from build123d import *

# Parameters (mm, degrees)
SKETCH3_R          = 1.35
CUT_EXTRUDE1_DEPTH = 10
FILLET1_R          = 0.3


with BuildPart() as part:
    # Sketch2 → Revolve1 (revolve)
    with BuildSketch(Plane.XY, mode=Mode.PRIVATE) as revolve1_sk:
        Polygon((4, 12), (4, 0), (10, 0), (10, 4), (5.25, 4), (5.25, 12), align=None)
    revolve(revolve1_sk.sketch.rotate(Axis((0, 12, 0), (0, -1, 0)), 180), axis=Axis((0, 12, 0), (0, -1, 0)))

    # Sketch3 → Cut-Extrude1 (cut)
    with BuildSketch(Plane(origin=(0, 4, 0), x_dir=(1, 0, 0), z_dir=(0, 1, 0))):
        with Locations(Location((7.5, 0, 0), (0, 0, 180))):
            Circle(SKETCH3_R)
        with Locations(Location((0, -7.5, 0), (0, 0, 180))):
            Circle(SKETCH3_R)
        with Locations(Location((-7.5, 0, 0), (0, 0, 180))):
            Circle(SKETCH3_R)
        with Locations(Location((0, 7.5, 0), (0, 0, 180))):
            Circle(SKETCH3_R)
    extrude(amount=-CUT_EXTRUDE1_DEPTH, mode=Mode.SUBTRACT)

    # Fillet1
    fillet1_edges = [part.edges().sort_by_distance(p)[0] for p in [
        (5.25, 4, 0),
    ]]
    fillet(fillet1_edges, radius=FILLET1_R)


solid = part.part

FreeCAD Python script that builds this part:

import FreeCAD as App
import Part
import Sketcher
Q = App.Units.Quantity


def edges_at(feature, points):
    """Names of the edges that pass closest to the given points."""
    edges = feature.Shape.Edges
    near = lambda p: min(range(len(edges)), key=lambda i: edges[i].distToShape(Part.Vertex(*p))[0])
    return sorted({f"Edge{near(p) + 1}" for p in points})


def add_polygon(sketch, points):
    """Adds a closed chain of lines whose ends are joined by coincident constraints."""
    first, n = sketch.GeometryCount, len(points)
    for a, b in zip(points, points[1:] + points[:1]):
        sketch.addGeometry(Part.LineSegment(App.Vector(*a, 0), App.Vector(*b, 0)), False)
    for i in range(n):
        sketch.addConstraint(Sketcher.Constraint("Coincident", first + i, 2, first + (i + 1) % n, 1))

doc = App.newDocument("Part")
body = doc.addObject("PartDesign::Body", "Body")

sketch1 = doc.addObject("Sketcher::SketchObject", "Sketch")
body.addObject(sketch1)
sketch1.AttachmentSupport = (doc.XY_Plane, [""])
sketch1.MapMode = "FlatFace"
add_polygon(sketch1, [(4, 12), (4, 0), (10, 0), (10, 4), (5.2, 4), (5.2, 12)])
sketch1.addConstraint(Sketcher.Constraint("Vertical", 0))
sketch1.addConstraint(Sketcher.Constraint("Horizontal", 1))
sketch1.addConstraint(Sketcher.Constraint("Vertical", 2))
sketch1.addConstraint(Sketcher.Constraint("Horizontal", 3))
sketch1.addConstraint(Sketcher.Constraint("Vertical", 4))
sketch1.addConstraint(Sketcher.Constraint("Horizontal", 5))
sketch1.addConstraint(Sketcher.Constraint("PointOnObject", 0, 2, -1))
sketch1.addConstraint(Sketcher.Constraint("DistanceX", 1, 1, 1, 2, Q("6 mm")))
sketch1.addConstraint(Sketcher.Constraint("DistanceY", 0, 2, 0, 1, Q("12 mm")))
sketch1.addConstraint(Sketcher.Constraint("DistanceY", 2, 1, 2, 2, Q("4 mm")))
sketch1.addConstraint(Sketcher.Constraint("DistanceX", -1, 1, 0, 2, Q("4 mm")))
sketch1.addConstraint(Sketcher.Constraint("DistanceX", 3, 2, 3, 1, Q("4.75 mm")))
revolution = doc.addObject("PartDesign::Revolution", "Revolution")
body.addObject(revolution)
revolution.Profile = sketch1
revolution.ReferenceAxis = (sketch1, ["V_Axis"])
revolution.Angle = 360

sketch2 = doc.addObject("Sketcher::SketchObject", "Sketch001")
body.addObject(sketch2)
sketch2.AttachmentSupport = (doc.XZ_Plane, [""])
sketch2.MapMode = "FlatFace"
sketch2.AttachmentOffset = App.Placement(App.Vector(0, 0, -4), App.Rotation())
sketch2.addGeometry(Part.Circle(App.Vector(7.5, 0, 0), App.Vector(0, 0, 1), 1.4), False)
sketch2.addGeometry(Part.Circle(App.Vector(0, 7.5, 0), App.Vector(0, 0, 1), 1.4), False)
sketch2.addGeometry(Part.Circle(App.Vector(-7.5, 0, 0), App.Vector(0, 0, 1), 1.4), False)
sketch2.addGeometry(Part.Circle(App.Vector(0, -7.5, 0), App.Vector(0, 0, 1), 1.4), False)
sketch2.addConstraint(Sketcher.Constraint("Equal", 0, 1))
sketch2.addConstraint(Sketcher.Constraint("Equal", 1, 2))
sketch2.addConstraint(Sketcher.Constraint("Equal", 2, 3))
sketch2.addConstraint(Sketcher.Constraint("Symmetric", 0, 3, 2, 3, -1, 1))
sketch2.addConstraint(Sketcher.Constraint("Symmetric", 1, 3, 3, 3, -1, 1))
sketch2.addConstraint(Sketcher.Constraint("PointOnObject", 0, 3, -1))
sketch2.addConstraint(Sketcher.Constraint("PointOnObject", 1, 3, -2))
sketch2.addConstraint(Sketcher.Constraint("Diameter", 0, Q("2.7 mm")))
sketch2.addConstraint(Sketcher.Constraint("DistanceX", 2, 3, 0, 3, Q("15 mm")))
sketch2.addConstraint(Sketcher.Constraint("DistanceY", 3, 3, 1, 3, Q("15 mm")))
pocket1 = doc.addObject("PartDesign::Pocket", "Pocket")
body.addObject(pocket1)
pocket1.Profile = sketch2
pocket1.Length = 10
pocket1.Reversed = True
doc.recompute()

fillet = doc.addObject("PartDesign::Fillet", "Fillet")
body.addObject(fillet)
fillet.Base = (pocket1, edges_at(pocket1, [(5.25, 4, 0)]))
fillet.Radius = 0.3

doc.recompute()
